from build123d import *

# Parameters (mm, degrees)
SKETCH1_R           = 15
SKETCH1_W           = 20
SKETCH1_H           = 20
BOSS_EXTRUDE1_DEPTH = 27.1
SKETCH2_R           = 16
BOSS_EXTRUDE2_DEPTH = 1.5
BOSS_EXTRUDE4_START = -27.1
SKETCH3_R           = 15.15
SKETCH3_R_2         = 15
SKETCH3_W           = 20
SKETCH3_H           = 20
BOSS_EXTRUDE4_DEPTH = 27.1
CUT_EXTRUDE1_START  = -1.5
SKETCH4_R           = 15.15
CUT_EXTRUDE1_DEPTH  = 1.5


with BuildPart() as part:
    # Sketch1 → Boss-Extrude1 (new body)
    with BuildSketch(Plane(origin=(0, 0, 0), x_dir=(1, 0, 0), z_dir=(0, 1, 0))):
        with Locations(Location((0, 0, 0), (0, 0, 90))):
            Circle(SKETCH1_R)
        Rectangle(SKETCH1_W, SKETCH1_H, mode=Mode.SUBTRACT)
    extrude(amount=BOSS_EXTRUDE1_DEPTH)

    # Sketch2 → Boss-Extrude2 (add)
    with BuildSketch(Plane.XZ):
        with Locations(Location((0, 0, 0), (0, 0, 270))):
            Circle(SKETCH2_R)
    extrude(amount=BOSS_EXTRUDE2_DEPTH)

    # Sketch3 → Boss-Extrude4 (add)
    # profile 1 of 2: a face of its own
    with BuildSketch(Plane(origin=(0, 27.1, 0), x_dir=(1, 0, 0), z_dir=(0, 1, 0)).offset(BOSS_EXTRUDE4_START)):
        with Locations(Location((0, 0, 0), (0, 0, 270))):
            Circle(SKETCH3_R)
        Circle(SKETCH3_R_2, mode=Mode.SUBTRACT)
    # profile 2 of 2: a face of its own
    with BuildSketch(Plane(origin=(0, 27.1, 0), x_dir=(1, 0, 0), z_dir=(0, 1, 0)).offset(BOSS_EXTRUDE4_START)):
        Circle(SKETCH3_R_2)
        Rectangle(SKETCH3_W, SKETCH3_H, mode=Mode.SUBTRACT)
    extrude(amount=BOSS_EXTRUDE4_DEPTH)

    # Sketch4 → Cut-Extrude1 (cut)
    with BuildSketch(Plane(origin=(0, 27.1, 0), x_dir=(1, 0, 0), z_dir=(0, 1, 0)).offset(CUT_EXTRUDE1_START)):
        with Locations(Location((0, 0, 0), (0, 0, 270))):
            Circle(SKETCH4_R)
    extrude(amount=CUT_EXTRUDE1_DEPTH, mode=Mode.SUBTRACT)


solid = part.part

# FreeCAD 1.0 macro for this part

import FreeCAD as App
import Part
import Sketcher

V = App.Vector
Q = App.Units.Quantity

doc = App.newDocument("Part")
body = doc.addObject("PartDesign::Body", "Body")

sketch1 = doc.addObject("Sketcher::SketchObject", "Sketch")
body.addObject(sketch1)
sketch1.AttachmentSupport = (doc.XZ_Plane, [""])
sketch1.MapMode = "FlatFace"
sketch1.addGeometry([
    Part.Circle(V(0, 0, 0), V(0, 0, 1), 15),
    Part.LineSegment(V(10, 10, 0), V(-10, 10, 0)),
    Part.LineSegment(V(-10, 10, 0), V(-10, -10, 0)),
    Part.LineSegment(V(-10, -10, 0), V(10, -10, 0)),
    Part.LineSegment(V(10, -10, 0), V(10, 10, 0)),
], False)
sketch1.addConstraint([
    Sketcher.Constraint("Coincident", 1, 2, 2, 1),
    Sketcher.Constraint("Coincident", 2, 2, 3, 1),
    Sketcher.Constraint("Coincident", 3, 2, 4, 1),
    Sketcher.Constraint("Coincident", 4, 2, 1, 1),
    Sketcher.Constraint("Horizontal", 1),
    Sketcher.Constraint("Vertical", 2),
    Sketcher.Constraint("Horizontal", 3),
    Sketcher.Constraint("Vertical", 4),
    Sketcher.Constraint("Coincident", 0, 3, -1, 1),
    Sketcher.Constraint("Symmetric", 1, 2, 3, 2, -1, 1),
    Sketcher.Constraint("Equal", 3, 2),
    Sketcher.Constraint("Diameter", 0, Q("30 mm")),
    Sketcher.Constraint("DistanceX", 1, 2, 1, 1, Q("20 mm")),
])
pad1 = doc.addObject("PartDesign::Pad", "Pad")
body.addObject(pad1)
pad1.Profile = sketch1
pad1.Length = 27.1
pad1.Reversed = True

sketch2 = doc.addObject("Sketcher::SketchObject", "Sketch001")
body.addObject(sketch2)
sketch2.AttachmentSupport = (doc.XZ_Plane, [""])
sketch2.MapMode = "FlatFace"
sketch2.addGeometry(Part.Circle(V(0, 0, 0), V(0, 0, 1), 16), False)
sketch2.addConstraint([
    Sketcher.Constraint("Coincident", 0, 3, -1, 1),
    Sketcher.Constraint("Diameter", 0, Q("32 mm")),
])
pad2 = doc.addObject("PartDesign::Pad", "Pad001")
body.addObject(pad2)
pad2.Profile = sketch2
pad2.Length = 1.5

sketch3 = doc.addObject("Sketcher::SketchObject", "Sketch002")
body.addObject(sketch3)
sketch3.AttachmentSupport = (doc.XZ_Plane, [""])
sketch3.MapMode = "FlatFace"
sketch3.addGeometry([
    Part.Circle(V(0, 0, 0), V(0, 0, 1), 15),
    Part.LineSegment(V(-10, 10, 0), V(-10, -10, 0)),
    Part.LineSegment(V(-10, -10, 0), V(10, -10, 0)),
    Part.LineSegment(V(10, -10, 0), V(10, 10, 0)),
    Part.LineSegment(V(10, 10, 0), V(-10, 10, 0)),
], False)
sketch3.addConstraint([
    Sketcher.Constraint("Coincident", 1, 2, 2, 1),
    Sketcher.Constraint("Coincident", 2, 2, 3, 1),
    Sketcher.Constraint("Coincident", 3, 2, 4, 1),
    Sketcher.Constraint("Coincident", 4, 2, 1, 1),
    Sketcher.Constraint("Vertical", 1),
    Sketcher.Constraint("Horizontal", 2),
    Sketcher.Constraint("Vertical", 3),
    Sketcher.Constraint("Horizontal", 4),
    Sketcher.Constraint("Coincident", 0, 3, -1, 1),
    Sketcher.Constraint("Symmetric", 1, 2, 3, 2, -1, 1),
    Sketcher.Constraint("Equal", 4, 1),
    Sketcher.Constraint("Diameter", 0, Q("30.3 mm")),
    Sketcher.Constraint("DistanceX", 2, 1, 2, 2, Q("20 mm")),
])
pad3 = doc.addObject("PartDesign::Pad", "Pad002")
body.addObject(pad3)
pad3.Profile = sketch3
pad3.Length = 27.1
pad3.Reversed = True

sketch4 = doc.addObject("Sketcher::SketchObject", "Sketch003")
body.addObject(sketch4)
sketch4.AttachmentSupport = (doc.XZ_Plane, [""])
sketch4.MapMode = "FlatFace"
sketch4.AttachmentOffset = App.Placement(V(0, 0, -25.6), App.Rotation())
sketch4.addGeometry(Part.Circle(V(0, 0, 0), V(0, 0, 1), 15), False)
sketch4.addConstraint([
    Sketcher.Constraint("Coincident", 0, 3, -1, 1),
    Sketcher.Constraint("Diameter", 0, Q("30.3 mm")),
])
pocket1 = doc.addObject("PartDesign::Pocket", "Pocket")
body.addObject(pocket1)
pocket1.Profile = sketch4
pocket1.Length = 1.5

doc.recompute()
